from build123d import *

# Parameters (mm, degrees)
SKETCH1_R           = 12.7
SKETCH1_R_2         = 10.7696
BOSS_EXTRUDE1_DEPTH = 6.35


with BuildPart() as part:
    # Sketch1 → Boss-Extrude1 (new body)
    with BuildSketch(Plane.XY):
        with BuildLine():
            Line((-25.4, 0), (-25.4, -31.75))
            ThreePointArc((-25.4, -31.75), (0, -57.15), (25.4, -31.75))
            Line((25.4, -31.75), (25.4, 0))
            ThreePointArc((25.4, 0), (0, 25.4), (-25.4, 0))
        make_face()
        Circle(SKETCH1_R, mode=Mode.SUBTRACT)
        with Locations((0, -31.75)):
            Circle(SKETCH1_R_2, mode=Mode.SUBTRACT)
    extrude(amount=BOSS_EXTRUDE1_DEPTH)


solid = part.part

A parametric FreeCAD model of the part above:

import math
import FreeCAD as App
import Part
import Sketcher
Q = App.Units.Quantity

doc = App.newDocument("Part")
body = doc.addObject("PartDesign::Body", "Body")

# Sketch on XY plane
sketch1 = body.newObject("Sketcher::SketchObject", "Sketch")
sketch1.AttachmentSupport = (doc.getObject("XY_Plane"), [""])
sketch1.MapMode = "FlatFace"
sketch1.addGeometry(Part.LineSegment(App.Vector(-25, 0, 0), App.Vector(-25, -32, 0)), False)
sketch1.addGeometry(Part.ArcOfCircle(Part.Circle(App.Vector(0, -32, 0), App.Vector(0, 0, 1), 25), math.radians(180), math.radians(360)), False)
sketch1.addGeometry(Part.LineSegment(App.Vector(25, -32, 0), App.Vector(25, 0, 0)), False)
sketch1.addGeometry(Part.ArcOfCircle(Part.Circle(App.Vector(0, 0, 0), App.Vector(0, 0, 1), 25), math.radians(0), math.radians(180)), False)
sketch1.addGeometry(Part.Circle(App.Vector(0, -32, 0), App.Vector(0, 0, 1), 11), False)
sketch1.addGeometry(Part.Circle(App.Vector(0, 0, 0), App.Vector(0, 0, 1), 13), False)
sketch1.addConstraint(Sketcher.Constraint("Tangent", 0, 2, 1, 1))
sketch1.addConstraint(Sketcher.Constraint("Tangent", 1, 2, 2, 1))
sketch1.addConstraint(Sketcher.Constraint("Tangent", 2, 2, 3, 1))
sketch1.addConstraint(Sketcher.Constraint("Tangent", 3, 2, 0, 1))
sketch1.addConstraint(Sketcher.Constraint("Vertical", 0))
sketch1.addConstraint(Sketcher.Constraint("Vertical", 2))
sketch1.addConstraint(Sketcher.Constraint("Coincident", 3, 3, -1, 1))
sketch1.addConstraint(Sketcher.Constraint("Coincident", 5, 3, -1, 1))
sketch1.addConstraint(Sketcher.Constraint("Coincident", 4, 3, 1, 3))
sketch1.addConstraint(Sketcher.Constraint("Diameter", 5, Q("1 in")))
sketch1.addConstraint(Sketcher.Constraint("Radius", 1, Q("1 in")))
sketch1.addConstraint(Sketcher.Constraint("Diameter", 4, Q("0.848 in")))
sketch1.addConstraint(Sketcher.Constraint("DistanceY", 0, 2, 0, 1, Q("1.25 in")))
pad1 = body.newObject("PartDesign::Pad", "Pad")
pad1.Profile = sketch1
pad1.Length = Q("0.25 in")

doc.recompute()
